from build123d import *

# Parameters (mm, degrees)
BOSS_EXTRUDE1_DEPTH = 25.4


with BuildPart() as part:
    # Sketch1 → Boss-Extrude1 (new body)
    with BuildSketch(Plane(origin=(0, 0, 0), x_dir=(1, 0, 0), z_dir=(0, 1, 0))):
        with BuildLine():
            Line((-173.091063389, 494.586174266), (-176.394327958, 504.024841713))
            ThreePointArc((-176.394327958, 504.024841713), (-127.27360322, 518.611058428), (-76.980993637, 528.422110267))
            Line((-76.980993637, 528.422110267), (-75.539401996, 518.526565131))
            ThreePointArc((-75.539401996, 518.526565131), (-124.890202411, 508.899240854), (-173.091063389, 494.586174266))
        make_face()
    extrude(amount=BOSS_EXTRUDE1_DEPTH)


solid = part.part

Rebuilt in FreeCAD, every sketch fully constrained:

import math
import FreeCAD as App
import Part
import Sketcher
from FreeCAD import Vector
Q = App.Units.Quantity

doc = App.newDocument("Part")
body = doc.addObject("PartDesign::Body", "Body")

sketch1 = body.newObject("Sketcher::SketchObject", "Sketch")
sketch1.AttachmentSupport = (doc.getObject("XZ_Plane"), [""])
sketch1.MapMode = "FlatFace"
sketch1.addGeometry([
    Part.LineSegment(Vector(-176.394328, -504.024842, 0), Vector(-173.091063, -494.586174, 0)),
    Part.ArcOfCircle(Part.Circle(Vector(0, 0, 0), Vector(0, 0, 1), 524), math.radians(-109.288591), math.radians(-98.288591)),
    Part.LineSegment(Vector(-75.539402, -518.526565, 0), Vector(-76.980994, -528.42211, 0)),
    Part.ArcOfCircle(Part.Circle(Vector(0, 0, 0), Vector(0, 0, 1), 534), math.radians(-109.288591), math.radians(-98.288591)),
], False)
sketch1.addConstraint([
    Sketcher.Constraint("Coincident", 0, 2, 1, 1),
    Sketcher.Constraint("Coincident", 1, 2, 2, 1),
    Sketcher.Constraint("Coincident", 2, 2, 3, 2),
    Sketcher.Constraint("Coincident", 3, 1, 0, 1),
    Sketcher.Constraint("Coincident", 1, 3, -1, 1),
    Sketcher.Constraint("Coincident", 3, 3, -1, 1),
    Sketcher.Constraint("Radius", 1, 524.0),
    Sketcher.Constraint("Radius", 3, 534.0),
    Sketcher.Constraint("DistanceY", 2, 2, -1, 1, 528.42211),
    Sketcher.Constraint("DistanceX", 0, 2, 1, 2, 97.551661),
    Sketcher.Constraint("DistanceX", 0, 2, 2, 2, 96.11007),
    Sketcher.Constraint("Angle", 0, Q("70.711409 deg")),
])
pad1 = body.newObject("PartDesign::Pad", "Pad")
pad1.Profile = sketch1
pad1.Length = 25.4
pad1.Reversed = True

doc.recompute()
